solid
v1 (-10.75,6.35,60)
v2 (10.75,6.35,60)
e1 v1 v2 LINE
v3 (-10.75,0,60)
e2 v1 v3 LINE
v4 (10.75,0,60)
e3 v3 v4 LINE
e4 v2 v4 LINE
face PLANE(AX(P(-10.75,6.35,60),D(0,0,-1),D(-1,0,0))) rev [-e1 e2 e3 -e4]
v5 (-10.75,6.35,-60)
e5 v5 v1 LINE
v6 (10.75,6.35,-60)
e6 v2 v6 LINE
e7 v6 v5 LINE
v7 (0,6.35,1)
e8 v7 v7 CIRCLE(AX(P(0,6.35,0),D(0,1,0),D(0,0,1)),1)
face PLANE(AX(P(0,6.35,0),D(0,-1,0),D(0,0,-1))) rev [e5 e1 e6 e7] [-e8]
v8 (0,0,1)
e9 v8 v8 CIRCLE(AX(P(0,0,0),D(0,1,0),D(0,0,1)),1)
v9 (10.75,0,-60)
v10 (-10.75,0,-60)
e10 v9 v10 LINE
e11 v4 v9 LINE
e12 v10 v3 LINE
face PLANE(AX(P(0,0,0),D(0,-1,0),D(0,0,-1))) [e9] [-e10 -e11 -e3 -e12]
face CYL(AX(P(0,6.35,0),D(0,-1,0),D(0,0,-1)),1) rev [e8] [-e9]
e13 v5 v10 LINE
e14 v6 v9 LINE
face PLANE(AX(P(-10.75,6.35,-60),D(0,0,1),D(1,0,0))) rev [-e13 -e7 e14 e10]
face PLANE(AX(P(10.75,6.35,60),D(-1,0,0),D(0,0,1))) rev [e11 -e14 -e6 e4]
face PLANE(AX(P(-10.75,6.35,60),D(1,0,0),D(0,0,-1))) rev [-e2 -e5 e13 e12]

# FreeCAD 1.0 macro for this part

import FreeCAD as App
import Part
import Sketcher
from FreeCAD import Vector


def add_polygon(sketch, points):
    """Adds a closed chain of lines whose ends are joined by coincident constraints."""
    first, n = sketch.GeometryCount, len(points)
    for a, b in zip(points, points[1:] + points[:1]):
        sketch.addGeometry(Part.LineSegment(App.Vector(*a, 0), App.Vector(*b, 0)), False)
    for i in range(n):
        sketch.addConstraint(Sketcher.Constraint("Coincident", first + i, 2, first + (i + 1) % n, 1))

doc = App.newDocument("Part")
params = doc.addObject("Spreadsheet::Sheet", "Params")
for row, (alias, value) in enumerate([
    ("sketch1_diameter", "2 mm"),
    ("sketch1_height", "120 mm"),
    ("sketch1_width", "21.5 mm"),
    ("pad1_length", "6.35 mm"),
], start=1):
    params.set(f"A{row}", alias)
    params.set(f"B{row}", "=" + value)
    params.setAlias(f"B{row}", alias)

body = doc.addObject("PartDesign::Body", "Body")

# Sketch on XZ plane
sketch1 = body.newObject("Sketcher::SketchObject", "Sketch")
sketch1.AttachmentSupport = (doc.getObject("XZ_Plane"), [""])
sketch1.MapMode = "FlatFace"
add_polygon(sketch1, [(-10.8, -60), (-10.8, 60), (10.8, 60), (10.8, -60)])  # lines 0-3
sketch1.addGeometry(Part.Circle(Vector(0, 0, 0), Vector(0, 0, 1), 1), False)  # 4
sketch1.addConstraint([
    Sketcher.Constraint("Vertical", 0),
    Sketcher.Constraint("Horizontal", 1),
    Sketcher.Constraint("Vertical", 2),
    Sketcher.Constraint("Horizontal", 3),
    Sketcher.Constraint("Coincident", 4, 3, -1, 1),
    Sketcher.Constraint("Symmetric", 0, 2, 2, 2, -1, 1),
    Sketcher.Constraint("Diameter", 4, 2.0),
    Sketcher.Constraint("DistanceY", 0, 1, 0, 2, 120.0),
    Sketcher.Constraint("DistanceX", 1, 1, 1, 2, 21.5),
])
sketch1.setExpression("Constraints[10]", "Params.sketch1_diameter")
sketch1.setExpression("Constraints[11]", "Params.sketch1_height")
sketch1.setExpression("Constraints[12]", "Params.sketch1_width")
pad1 = body.newObject("PartDesign::Pad", "Pad")
pad1.Profile = sketch1
pad1.setExpression("Length", "Params.pad1_length")
pad1.Reversed = True

doc.recompute()
